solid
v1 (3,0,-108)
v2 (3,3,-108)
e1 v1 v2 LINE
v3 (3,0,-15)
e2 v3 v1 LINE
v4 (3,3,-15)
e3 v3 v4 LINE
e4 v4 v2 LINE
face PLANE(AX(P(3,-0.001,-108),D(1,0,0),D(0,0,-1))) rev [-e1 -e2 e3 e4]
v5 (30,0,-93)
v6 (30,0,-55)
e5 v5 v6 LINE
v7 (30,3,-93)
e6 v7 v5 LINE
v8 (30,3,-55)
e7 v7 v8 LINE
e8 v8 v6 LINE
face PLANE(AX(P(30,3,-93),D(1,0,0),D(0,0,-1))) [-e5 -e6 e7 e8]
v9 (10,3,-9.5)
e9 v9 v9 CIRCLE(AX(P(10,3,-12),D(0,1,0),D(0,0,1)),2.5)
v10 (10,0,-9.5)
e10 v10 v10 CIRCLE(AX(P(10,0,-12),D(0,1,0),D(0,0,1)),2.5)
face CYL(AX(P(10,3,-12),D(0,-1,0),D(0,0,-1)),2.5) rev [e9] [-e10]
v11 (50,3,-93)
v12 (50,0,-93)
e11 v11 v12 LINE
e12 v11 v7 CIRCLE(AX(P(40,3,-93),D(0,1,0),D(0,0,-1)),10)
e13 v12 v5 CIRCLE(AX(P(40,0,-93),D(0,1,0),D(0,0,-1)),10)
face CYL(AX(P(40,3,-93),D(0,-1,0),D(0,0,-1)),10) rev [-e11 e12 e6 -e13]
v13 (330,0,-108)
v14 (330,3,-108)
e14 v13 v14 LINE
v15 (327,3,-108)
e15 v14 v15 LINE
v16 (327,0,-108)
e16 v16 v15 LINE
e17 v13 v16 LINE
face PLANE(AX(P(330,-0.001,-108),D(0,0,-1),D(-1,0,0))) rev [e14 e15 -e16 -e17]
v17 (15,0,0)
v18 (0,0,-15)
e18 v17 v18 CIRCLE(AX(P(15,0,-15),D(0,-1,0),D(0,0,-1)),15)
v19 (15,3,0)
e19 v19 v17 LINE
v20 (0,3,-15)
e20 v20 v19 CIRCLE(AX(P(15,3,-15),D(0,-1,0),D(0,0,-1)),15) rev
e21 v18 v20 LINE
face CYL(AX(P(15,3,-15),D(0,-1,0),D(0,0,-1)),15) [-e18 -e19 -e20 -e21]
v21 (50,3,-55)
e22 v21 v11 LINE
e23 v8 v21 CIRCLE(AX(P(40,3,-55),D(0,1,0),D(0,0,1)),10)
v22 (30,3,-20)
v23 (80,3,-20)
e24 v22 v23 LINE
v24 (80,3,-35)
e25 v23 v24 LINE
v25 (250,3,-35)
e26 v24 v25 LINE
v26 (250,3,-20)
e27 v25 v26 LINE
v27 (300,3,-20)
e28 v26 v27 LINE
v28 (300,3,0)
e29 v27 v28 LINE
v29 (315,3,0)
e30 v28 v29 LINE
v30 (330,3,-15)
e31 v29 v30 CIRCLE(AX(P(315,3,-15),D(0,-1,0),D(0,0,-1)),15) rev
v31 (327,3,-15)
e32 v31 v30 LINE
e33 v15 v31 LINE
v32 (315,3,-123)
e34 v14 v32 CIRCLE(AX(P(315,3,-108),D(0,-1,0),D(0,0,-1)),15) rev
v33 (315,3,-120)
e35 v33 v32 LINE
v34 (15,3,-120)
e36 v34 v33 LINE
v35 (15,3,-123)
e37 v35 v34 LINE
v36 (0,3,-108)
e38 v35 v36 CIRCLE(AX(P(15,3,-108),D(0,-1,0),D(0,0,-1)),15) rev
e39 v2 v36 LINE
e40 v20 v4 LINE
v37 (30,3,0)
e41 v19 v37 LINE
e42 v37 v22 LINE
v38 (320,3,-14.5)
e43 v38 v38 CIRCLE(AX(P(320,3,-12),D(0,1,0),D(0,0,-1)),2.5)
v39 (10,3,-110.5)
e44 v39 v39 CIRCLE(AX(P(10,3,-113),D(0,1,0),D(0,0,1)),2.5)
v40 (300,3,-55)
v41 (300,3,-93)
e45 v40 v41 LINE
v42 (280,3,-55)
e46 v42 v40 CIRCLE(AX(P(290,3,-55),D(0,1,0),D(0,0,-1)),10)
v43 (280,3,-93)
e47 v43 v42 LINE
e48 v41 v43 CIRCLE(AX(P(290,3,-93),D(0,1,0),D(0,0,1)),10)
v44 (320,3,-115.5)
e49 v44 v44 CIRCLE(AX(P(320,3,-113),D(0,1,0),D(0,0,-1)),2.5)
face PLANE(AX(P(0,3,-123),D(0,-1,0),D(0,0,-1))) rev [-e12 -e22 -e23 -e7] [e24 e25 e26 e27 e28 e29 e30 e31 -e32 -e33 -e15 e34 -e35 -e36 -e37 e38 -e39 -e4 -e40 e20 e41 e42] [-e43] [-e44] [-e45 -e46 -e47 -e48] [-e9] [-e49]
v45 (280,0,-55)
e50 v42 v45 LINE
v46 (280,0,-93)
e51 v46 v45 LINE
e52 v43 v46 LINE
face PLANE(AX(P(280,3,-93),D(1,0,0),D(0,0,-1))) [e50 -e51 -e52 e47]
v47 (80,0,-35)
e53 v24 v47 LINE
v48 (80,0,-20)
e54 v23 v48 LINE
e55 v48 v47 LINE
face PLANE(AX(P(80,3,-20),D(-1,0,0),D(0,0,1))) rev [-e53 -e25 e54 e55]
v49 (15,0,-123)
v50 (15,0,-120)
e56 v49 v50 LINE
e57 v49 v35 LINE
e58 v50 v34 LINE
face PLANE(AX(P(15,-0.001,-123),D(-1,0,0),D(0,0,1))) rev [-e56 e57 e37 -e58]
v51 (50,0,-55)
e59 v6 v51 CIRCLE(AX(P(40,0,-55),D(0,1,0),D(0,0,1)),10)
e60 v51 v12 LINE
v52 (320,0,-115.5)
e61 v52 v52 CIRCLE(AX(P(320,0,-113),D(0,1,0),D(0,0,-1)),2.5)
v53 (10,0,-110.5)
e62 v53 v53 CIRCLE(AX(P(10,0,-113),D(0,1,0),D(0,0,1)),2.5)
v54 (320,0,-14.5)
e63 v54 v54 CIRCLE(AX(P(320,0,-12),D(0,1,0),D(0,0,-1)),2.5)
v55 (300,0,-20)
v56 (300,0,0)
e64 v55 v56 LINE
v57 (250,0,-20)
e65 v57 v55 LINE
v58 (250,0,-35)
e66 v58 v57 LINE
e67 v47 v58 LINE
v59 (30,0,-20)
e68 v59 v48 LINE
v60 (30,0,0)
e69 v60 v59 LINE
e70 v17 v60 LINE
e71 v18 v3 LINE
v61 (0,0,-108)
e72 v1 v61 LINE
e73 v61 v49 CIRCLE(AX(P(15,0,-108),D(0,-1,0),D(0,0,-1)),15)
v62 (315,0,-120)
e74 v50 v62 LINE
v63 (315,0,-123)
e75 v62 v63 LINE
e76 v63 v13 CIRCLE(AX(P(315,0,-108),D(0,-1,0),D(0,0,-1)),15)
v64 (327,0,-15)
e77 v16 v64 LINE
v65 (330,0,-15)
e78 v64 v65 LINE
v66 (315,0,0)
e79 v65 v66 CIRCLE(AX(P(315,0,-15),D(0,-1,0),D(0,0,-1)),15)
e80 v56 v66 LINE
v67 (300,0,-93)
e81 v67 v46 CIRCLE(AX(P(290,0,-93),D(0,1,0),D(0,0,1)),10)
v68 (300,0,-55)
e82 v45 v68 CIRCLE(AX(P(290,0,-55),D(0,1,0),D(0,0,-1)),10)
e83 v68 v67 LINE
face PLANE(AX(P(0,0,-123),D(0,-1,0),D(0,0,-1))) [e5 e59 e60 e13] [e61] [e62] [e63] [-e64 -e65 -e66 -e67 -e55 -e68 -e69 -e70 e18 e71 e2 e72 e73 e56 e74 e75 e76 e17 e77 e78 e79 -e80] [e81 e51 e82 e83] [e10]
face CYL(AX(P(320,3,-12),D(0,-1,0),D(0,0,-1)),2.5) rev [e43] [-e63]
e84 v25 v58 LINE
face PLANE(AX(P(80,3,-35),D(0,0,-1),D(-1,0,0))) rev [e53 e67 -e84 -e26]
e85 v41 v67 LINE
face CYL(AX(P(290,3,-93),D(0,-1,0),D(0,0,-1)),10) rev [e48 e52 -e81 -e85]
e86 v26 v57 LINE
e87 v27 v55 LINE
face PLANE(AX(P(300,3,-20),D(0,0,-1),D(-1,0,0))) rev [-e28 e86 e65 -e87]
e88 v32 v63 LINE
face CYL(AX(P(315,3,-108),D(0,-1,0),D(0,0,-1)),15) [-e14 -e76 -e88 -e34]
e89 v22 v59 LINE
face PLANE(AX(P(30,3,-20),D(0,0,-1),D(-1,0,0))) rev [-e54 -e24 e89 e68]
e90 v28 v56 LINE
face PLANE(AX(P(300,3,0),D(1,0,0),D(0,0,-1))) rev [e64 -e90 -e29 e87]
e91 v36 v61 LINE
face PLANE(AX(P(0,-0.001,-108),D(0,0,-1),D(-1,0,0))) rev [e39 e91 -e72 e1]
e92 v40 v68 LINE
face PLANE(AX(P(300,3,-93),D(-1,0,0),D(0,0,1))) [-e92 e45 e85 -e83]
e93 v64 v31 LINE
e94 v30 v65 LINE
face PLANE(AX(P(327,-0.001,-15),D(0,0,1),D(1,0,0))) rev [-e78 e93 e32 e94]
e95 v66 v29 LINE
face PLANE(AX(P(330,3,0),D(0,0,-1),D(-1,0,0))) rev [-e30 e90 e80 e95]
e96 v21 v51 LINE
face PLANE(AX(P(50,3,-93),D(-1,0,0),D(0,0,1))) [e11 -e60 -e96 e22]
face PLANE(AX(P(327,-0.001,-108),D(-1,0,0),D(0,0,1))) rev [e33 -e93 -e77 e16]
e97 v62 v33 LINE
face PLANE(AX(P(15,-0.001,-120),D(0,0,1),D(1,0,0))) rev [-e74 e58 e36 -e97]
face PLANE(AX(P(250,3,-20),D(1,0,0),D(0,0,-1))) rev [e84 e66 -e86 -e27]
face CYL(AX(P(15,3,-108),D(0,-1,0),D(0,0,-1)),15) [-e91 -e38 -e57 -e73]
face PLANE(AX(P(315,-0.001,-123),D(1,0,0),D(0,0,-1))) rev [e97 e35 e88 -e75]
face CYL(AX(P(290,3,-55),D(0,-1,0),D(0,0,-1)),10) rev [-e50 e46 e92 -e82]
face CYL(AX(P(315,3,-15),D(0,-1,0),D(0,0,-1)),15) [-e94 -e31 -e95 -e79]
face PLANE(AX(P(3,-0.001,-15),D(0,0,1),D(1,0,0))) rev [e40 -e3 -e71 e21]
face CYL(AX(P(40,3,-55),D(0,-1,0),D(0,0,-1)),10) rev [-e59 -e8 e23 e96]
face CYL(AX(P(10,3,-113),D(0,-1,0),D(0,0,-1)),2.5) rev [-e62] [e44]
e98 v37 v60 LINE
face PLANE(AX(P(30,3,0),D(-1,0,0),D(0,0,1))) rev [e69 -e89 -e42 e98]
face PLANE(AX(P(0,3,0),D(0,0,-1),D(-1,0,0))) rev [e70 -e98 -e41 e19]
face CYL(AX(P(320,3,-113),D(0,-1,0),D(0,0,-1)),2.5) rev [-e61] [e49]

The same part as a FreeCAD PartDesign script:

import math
import FreeCAD as App
import Part
import Sketcher

V = App.Vector
Q = App.Units.Quantity


def edges_at(feature, points):
    """Names of the edges that pass closest to the given points."""
    edges = feature.Shape.Edges
    near = lambda p: min(range(len(edges)), key=lambda i: edges[i].distToShape(Part.Vertex(*p))[0])
    return sorted({f"Edge{near(p) + 1}" for p in points})

doc = App.newDocument("Part")
body = doc.addObject("PartDesign::Body", "Body")

sketch1 = body.newObject("Sketcher::SketchObject", "Sketch")
sketch1.AttachmentSupport = (doc.getObject("XZ_Plane"), [""])
sketch1.MapMode = "FlatFace"
sketch1.addGeometry([
    Part.LineSegment(V(0, 0, 0), V(30, 0, 0)),
    Part.LineSegment(V(30, 0, 0), V(30, -20, 0)),
    Part.LineSegment(V(30, -20, 0), V(80, -20, 0)),
    Part.LineSegment(V(80, -20, 0), V(80, -35, 0)),
    Part.LineSegment(V(80, -35, 0), V(250, -35, 0)),
    Part.LineSegment(V(250, -35, 0), V(250, -20, 0)),
    Part.LineSegment(V(250, -20, 0), V(300, -20, 0)),
    Part.LineSegment(V(300, -20, 0), V(300, 0, 0)),
    Part.LineSegment(V(300, 0, 0), V(330, 0, 0)),
    Part.LineSegment(V(330, 0, 0), V(330, -123, 0)),
    Part.LineSegment(V(330, -123, 0), V(0, -123, 0)),
    Part.LineSegment(V(0, -123, 0), V(0, 0, 0)),
    Part.Circle(V(10, -12, 0), V(0, 0, 1), 2.5),
    Part.Circle(V(320, -12, 0), V(0, 0, 1), 2.5),
    Part.LineSegment(V(30, -55, 0), V(30, -93, 0)),
    Part.ArcOfCircle(Part.Circle(V(40, -93, 0), V(0, 0, 1), 10), math.radians(180), math.radians(360)),
    Part.LineSegment(V(50, -93, 0), V(50, -55, 0)),
    Part.ArcOfCircle(Part.Circle(V(40, -55, 0), V(0, 0, 1), 10), math.radians(0), math.radians(180)),
    Part.Circle(V(10, -113, 0), V(0, 0, 1), 2.5),
    Part.ArcOfCircle(Part.Circle(V(290, -93, 0), V(0, 0, 1), 10), math.radians(180), math.radians(360)),
    Part.LineSegment(V(300, -93, 0), V(300, -55, 0)),
    Part.ArcOfCircle(Part.Circle(V(290, -55, 0), V(0, 0, 1), 10), math.radians(0), math.radians(180)),
    Part.LineSegment(V(280, -55, 0), V(280, -93, 0)),
    Part.Circle(V(320, -113, 0), V(0, 0, 1), 2.5),
], False)
sketch1.addConstraint([
    Sketcher.Constraint("Coincident", 0, 2, 1, 1),
    Sketcher.Constraint("Coincident", 1, 2, 2, 1),
    Sketcher.Constraint("Coincident", 2, 2, 3, 1),
    Sketcher.Constraint("Coincident", 3, 2, 4, 1),
    Sketcher.Constraint("Coincident", 4, 2, 5, 1),
    Sketcher.Constraint("Coincident", 5, 2, 6, 1),
    Sketcher.Constraint("Coincident", 6, 2, 7, 1),
    Sketcher.Constraint("Coincident", 7, 2, 8, 1),
    Sketcher.Constraint("Coincident", 8, 2, 9, 1),
    Sketcher.Constraint("Coincident", 9, 2, 10, 1),
    Sketcher.Constraint("Coincident", 10, 2, 11, 1),
    Sketcher.Constraint("Coincident", 11, 2, 0, 1),
    Sketcher.Constraint("Tangent", 14, 2, 15, 1),
    Sketcher.Constraint("Tangent", 15, 2, 16, 1),
    Sketcher.Constraint("Tangent", 16, 2, 17, 1),
    Sketcher.Constraint("Tangent", 17, 2, 14, 1),
    Sketcher.Constraint("Tangent", 19, 2, 20, 1),
    Sketcher.Constraint("Tangent", 20, 2, 21, 1),
    Sketcher.Constraint("Tangent", 21, 2, 22, 1),
    Sketcher.Constraint("Tangent", 22, 2, 19, 1),
    Sketcher.Constraint("Horizontal", 0),
    Sketcher.Constraint("Vertical", 1),
    Sketcher.Constraint("Horizontal", 2),
    Sketcher.Constraint("Vertical", 3),
    Sketcher.Constraint("Horizontal", 4),
    Sketcher.Constraint("Vertical", 5),
    Sketcher.Constraint("Horizontal", 6),
    Sketcher.Constraint("Vertical", 7),
    Sketcher.Constraint("Horizontal", 8),
    Sketcher.Constraint("Vertical", 9),
    Sketcher.Constraint("Horizontal", 10),
    Sketcher.Constraint("Vertical", 11),
    Sketcher.Constraint("Vertical", 14),
    Sketcher.Constraint("Vertical", 16),
    Sketcher.Constraint("Vertical", 20),
    Sketcher.Constraint("Vertical", 22),
    Sketcher.Constraint("Coincident", 11, 2, -1, 1),
    Sketcher.Constraint("Equal", 12, 13),
    Sketcher.Constraint("Equal", 13, 18),
    Sketcher.Constraint("Equal", 17, 19),
    Sketcher.Constraint("Equal", 18, 23),
    Sketcher.Constraint("PointOnObject", 7, 2, -1),
    Sketcher.Constraint("Horizontal", 12, 3, 13, 3),
    Sketcher.Constraint("Horizontal", 15, 3, 19, 3),
    Sketcher.Constraint("Horizontal", 17, 3, 21, 3),
    Sketcher.Constraint("Horizontal", 18, 3, 23, 3),
    Sketcher.Constraint("Horizontal", 2, 2, 5, 2),
    Sketcher.Constraint("Vertical", 12, 3, 18, 3),
    Sketcher.Constraint("Vertical", 13, 3, 23, 3),
    Sketcher.Constraint("Vertical", 1, 2, 14, 2),
    Sketcher.Constraint("Vertical", 7, 2, 19, 2),
    Sketcher.Constraint("Equal", 2, 6),
    Sketcher.Constraint("Equal", 0, 8),
    Sketcher.Constraint("Diameter", 12, Q("5 mm")),
    Sketcher.Constraint("Radius", 15, Q("10 mm")),
    Sketcher.Constraint("DistanceX", 0, 1, 0, 2, Q("30 mm")),
    Sketcher.Constraint("DistanceX", 2, 1, 2, 2, Q("50 mm")),
    Sketcher.Constraint("DistanceX", 4, 1, 4, 2, Q("170 mm")),
    Sketcher.Constraint("DistanceY", 1, 2, 1, 1, Q("20 mm")),
    Sketcher.Constraint("DistanceY", 3, 2, 3, 1, Q("15 mm")),
    Sketcher.Constraint("DistanceY", 9, 2, 9, 1, Q("123 mm")),
    Sketcher.Constraint("DistanceY", 14, 2, 14, 1, Q("38 mm")),
    Sketcher.Constraint("DistanceX", -1, 1, 12, 3, Q("10 mm")),
    Sketcher.Constraint("DistanceY", 12, 3, -1, 1, Q("12 mm")),
    Sketcher.Constraint("DistanceX", -1, 1, 13, 3, Q("320 mm")),
    Sketcher.Constraint("DistanceY", 15, 3, -1, 1, Q("93 mm")),
    Sketcher.Constraint("DistanceY", 18, 3, -1, 1, Q("113 mm")),
])
pad1 = body.newObject("PartDesign::Pad", "Pad")
pad1.Profile = sketch1
pad1.Length = 3
pad1.Reversed = True
doc.recompute()

fillet = body.newObject("PartDesign::Fillet", "Fillet")
fillet.Base = (pad1, edges_at(pad1, [
    (0, 1.5, -123),
    (330, 1.5, -123),
    (330, 1.5, 0),
    (0, 1.5, 0),
]))
fillet.Radius = 15

sketch2 = body.newObject("Sketcher::SketchObject", "Sketch001")
sketch2.AttachmentSupport = (doc.getObject("XZ_Plane"), [""])
sketch2.MapMode = "FlatFace"
sketch2.AttachmentOffset = App.Placement(V(0, 0, -3), App.Rotation())
sketch2.addGeometry([
    Part.LineSegment(V(0, -108, 0), V(0, -15, 0)),
    Part.LineSegment(V(0, -15, 0), V(3, -15, 0)),
    Part.LineSegment(V(3, -15, 0), V(3, -108, 0)),
    Part.LineSegment(V(3, -108, 0), V(0, -108, 0)),
], False)
sketch2.addConstraint([
    Sketcher.Constraint("Coincident", 0, 2, 1, 1),
    Sketcher.Constraint("Coincident", 1, 2, 2, 1),
    Sketcher.Constraint("Coincident", 2, 2, 3, 1),
    Sketcher.Constraint("Coincident", 3, 2, 0, 1),
    Sketcher.Constraint("Vertical", 0),
    Sketcher.Constraint("Horizontal", 1),
    Sketcher.Constraint("Vertical", 2),
    Sketcher.Constraint("Horizontal", 3),
    Sketcher.Constraint("PointOnObject", 0, 2, -2),
    Sketcher.Constraint("DistanceX", 1, 1, 1, 2, Q("3 mm")),
    Sketcher.Constraint("DistanceY", 0, 1, 0, 2, Q("93 mm")),
    Sketcher.Constraint("DistanceY", 0, 2, -1, 1, Q("15 mm")),
])
pocket1 = body.newObject("PartDesign::Pocket", "Pocket")
pocket1.Profile = sketch2
pocket1.Type = "UpToFirst"
pocket1.Reversed = True

sketch3 = body.newObject("Sketcher::SketchObject", "Sketch002")
sketch3.AttachmentSupport = (doc.getObject("XZ_Plane"), [""])
sketch3.MapMode = "FlatFace"
sketch3.AttachmentOffset = App.Placement(V(0, 0, -3), App.Rotation())
sketch3.addGeometry([
    Part.LineSegment(V(15, -123, 0), V(15, -120, 0)),
    Part.LineSegment(V(15, -120, 0), V(315, -120, 0)),
    Part.LineSegment(V(315, -120, 0), V(315, -123, 0)),
    Part.LineSegment(V(315, -123, 0), V(15, -123, 0)),
], False)
sketch3.addConstraint([
    Sketcher.Constraint("Coincident", 0, 2, 1, 1),
    Sketcher.Constraint("Coincident", 1, 2, 2, 1),
    Sketcher.Constraint("Coincident", 2, 2, 3, 1),
    Sketcher.Constraint("Coincident", 3, 2, 0, 1),
    Sketcher.Constraint("Vertical", 0),
    Sketcher.Constraint("Horizontal", 1),
    Sketcher.Constraint("Vertical", 2),
    Sketcher.Constraint("Horizontal", 3),
    Sketcher.Constraint("DistanceX", 1, 1, 1, 2, Q("300 mm")),
    Sketcher.Constraint("DistanceY", 0, 1, 0, 2, Q("3 mm")),
    Sketcher.Constraint("DistanceX", -1, 1, 0, 2, Q("15 mm")),
    Sketcher.Constraint("DistanceY", 0, 2, -1, 1, Q("120 mm")),
])
pocket2 = body.newObject("PartDesign::Pocket", "Pocket001")
pocket2.Profile = sketch3
pocket2.Type = "UpToFirst"
pocket2.Reversed = True

sketch4 = body.newObject("Sketcher::SketchObject", "Sketch003")
sketch4.AttachmentSupport = (doc.getObject("XZ_Plane"), [""])
sketch4.MapMode = "FlatFace"
sketch4.AttachmentOffset = App.Placement(V(0, 0, -3), App.Rotation())
sketch4.addGeometry([
    Part.LineSegment(V(327, -108, 0), V(327, -15, 0)),
    Part.LineSegment(V(327, -15, 0), V(330, -15, 0)),
    Part.LineSegment(V(330, -15, 0), V(330, -108, 0)),
    Part.LineSegment(V(330, -108, 0), V(327, -108, 0)),
], False)
sketch4.addConstraint([
    Sketcher.Constraint("Coincident", 0, 2, 1, 1),
    Sketcher.Constraint("Coincident", 1, 2, 2, 1),
    Sketcher.Constraint("Coincident", 2, 2, 3, 1),
    Sketcher.Constraint("Coincident", 3, 2, 0, 1),
    Sketcher.Constraint("Vertical", 0),
    Sketcher.Constraint("Horizontal", 1),
    Sketcher.Constraint("Vertical", 2),
    Sketcher.Constraint("Horizontal", 3),
    Sketcher.Constraint("DistanceX", 1, 1, 1, 2, Q("3 mm")),
    Sketcher.Constraint("DistanceY", 0, 1, 0, 2, Q("93 mm")),
    Sketcher.Constraint("DistanceX", -1, 1, 0, 2, Q("327 mm")),
    Sketcher.Constraint("DistanceY", 0, 2, -1, 1, Q("15 mm")),
])
pocket3 = body.newObject("PartDesign::Pocket", "Pocket002")
pocket3.Profile = sketch4
pocket3.Type = "UpToFirst"
pocket3.Reversed = True

doc.recompute()
